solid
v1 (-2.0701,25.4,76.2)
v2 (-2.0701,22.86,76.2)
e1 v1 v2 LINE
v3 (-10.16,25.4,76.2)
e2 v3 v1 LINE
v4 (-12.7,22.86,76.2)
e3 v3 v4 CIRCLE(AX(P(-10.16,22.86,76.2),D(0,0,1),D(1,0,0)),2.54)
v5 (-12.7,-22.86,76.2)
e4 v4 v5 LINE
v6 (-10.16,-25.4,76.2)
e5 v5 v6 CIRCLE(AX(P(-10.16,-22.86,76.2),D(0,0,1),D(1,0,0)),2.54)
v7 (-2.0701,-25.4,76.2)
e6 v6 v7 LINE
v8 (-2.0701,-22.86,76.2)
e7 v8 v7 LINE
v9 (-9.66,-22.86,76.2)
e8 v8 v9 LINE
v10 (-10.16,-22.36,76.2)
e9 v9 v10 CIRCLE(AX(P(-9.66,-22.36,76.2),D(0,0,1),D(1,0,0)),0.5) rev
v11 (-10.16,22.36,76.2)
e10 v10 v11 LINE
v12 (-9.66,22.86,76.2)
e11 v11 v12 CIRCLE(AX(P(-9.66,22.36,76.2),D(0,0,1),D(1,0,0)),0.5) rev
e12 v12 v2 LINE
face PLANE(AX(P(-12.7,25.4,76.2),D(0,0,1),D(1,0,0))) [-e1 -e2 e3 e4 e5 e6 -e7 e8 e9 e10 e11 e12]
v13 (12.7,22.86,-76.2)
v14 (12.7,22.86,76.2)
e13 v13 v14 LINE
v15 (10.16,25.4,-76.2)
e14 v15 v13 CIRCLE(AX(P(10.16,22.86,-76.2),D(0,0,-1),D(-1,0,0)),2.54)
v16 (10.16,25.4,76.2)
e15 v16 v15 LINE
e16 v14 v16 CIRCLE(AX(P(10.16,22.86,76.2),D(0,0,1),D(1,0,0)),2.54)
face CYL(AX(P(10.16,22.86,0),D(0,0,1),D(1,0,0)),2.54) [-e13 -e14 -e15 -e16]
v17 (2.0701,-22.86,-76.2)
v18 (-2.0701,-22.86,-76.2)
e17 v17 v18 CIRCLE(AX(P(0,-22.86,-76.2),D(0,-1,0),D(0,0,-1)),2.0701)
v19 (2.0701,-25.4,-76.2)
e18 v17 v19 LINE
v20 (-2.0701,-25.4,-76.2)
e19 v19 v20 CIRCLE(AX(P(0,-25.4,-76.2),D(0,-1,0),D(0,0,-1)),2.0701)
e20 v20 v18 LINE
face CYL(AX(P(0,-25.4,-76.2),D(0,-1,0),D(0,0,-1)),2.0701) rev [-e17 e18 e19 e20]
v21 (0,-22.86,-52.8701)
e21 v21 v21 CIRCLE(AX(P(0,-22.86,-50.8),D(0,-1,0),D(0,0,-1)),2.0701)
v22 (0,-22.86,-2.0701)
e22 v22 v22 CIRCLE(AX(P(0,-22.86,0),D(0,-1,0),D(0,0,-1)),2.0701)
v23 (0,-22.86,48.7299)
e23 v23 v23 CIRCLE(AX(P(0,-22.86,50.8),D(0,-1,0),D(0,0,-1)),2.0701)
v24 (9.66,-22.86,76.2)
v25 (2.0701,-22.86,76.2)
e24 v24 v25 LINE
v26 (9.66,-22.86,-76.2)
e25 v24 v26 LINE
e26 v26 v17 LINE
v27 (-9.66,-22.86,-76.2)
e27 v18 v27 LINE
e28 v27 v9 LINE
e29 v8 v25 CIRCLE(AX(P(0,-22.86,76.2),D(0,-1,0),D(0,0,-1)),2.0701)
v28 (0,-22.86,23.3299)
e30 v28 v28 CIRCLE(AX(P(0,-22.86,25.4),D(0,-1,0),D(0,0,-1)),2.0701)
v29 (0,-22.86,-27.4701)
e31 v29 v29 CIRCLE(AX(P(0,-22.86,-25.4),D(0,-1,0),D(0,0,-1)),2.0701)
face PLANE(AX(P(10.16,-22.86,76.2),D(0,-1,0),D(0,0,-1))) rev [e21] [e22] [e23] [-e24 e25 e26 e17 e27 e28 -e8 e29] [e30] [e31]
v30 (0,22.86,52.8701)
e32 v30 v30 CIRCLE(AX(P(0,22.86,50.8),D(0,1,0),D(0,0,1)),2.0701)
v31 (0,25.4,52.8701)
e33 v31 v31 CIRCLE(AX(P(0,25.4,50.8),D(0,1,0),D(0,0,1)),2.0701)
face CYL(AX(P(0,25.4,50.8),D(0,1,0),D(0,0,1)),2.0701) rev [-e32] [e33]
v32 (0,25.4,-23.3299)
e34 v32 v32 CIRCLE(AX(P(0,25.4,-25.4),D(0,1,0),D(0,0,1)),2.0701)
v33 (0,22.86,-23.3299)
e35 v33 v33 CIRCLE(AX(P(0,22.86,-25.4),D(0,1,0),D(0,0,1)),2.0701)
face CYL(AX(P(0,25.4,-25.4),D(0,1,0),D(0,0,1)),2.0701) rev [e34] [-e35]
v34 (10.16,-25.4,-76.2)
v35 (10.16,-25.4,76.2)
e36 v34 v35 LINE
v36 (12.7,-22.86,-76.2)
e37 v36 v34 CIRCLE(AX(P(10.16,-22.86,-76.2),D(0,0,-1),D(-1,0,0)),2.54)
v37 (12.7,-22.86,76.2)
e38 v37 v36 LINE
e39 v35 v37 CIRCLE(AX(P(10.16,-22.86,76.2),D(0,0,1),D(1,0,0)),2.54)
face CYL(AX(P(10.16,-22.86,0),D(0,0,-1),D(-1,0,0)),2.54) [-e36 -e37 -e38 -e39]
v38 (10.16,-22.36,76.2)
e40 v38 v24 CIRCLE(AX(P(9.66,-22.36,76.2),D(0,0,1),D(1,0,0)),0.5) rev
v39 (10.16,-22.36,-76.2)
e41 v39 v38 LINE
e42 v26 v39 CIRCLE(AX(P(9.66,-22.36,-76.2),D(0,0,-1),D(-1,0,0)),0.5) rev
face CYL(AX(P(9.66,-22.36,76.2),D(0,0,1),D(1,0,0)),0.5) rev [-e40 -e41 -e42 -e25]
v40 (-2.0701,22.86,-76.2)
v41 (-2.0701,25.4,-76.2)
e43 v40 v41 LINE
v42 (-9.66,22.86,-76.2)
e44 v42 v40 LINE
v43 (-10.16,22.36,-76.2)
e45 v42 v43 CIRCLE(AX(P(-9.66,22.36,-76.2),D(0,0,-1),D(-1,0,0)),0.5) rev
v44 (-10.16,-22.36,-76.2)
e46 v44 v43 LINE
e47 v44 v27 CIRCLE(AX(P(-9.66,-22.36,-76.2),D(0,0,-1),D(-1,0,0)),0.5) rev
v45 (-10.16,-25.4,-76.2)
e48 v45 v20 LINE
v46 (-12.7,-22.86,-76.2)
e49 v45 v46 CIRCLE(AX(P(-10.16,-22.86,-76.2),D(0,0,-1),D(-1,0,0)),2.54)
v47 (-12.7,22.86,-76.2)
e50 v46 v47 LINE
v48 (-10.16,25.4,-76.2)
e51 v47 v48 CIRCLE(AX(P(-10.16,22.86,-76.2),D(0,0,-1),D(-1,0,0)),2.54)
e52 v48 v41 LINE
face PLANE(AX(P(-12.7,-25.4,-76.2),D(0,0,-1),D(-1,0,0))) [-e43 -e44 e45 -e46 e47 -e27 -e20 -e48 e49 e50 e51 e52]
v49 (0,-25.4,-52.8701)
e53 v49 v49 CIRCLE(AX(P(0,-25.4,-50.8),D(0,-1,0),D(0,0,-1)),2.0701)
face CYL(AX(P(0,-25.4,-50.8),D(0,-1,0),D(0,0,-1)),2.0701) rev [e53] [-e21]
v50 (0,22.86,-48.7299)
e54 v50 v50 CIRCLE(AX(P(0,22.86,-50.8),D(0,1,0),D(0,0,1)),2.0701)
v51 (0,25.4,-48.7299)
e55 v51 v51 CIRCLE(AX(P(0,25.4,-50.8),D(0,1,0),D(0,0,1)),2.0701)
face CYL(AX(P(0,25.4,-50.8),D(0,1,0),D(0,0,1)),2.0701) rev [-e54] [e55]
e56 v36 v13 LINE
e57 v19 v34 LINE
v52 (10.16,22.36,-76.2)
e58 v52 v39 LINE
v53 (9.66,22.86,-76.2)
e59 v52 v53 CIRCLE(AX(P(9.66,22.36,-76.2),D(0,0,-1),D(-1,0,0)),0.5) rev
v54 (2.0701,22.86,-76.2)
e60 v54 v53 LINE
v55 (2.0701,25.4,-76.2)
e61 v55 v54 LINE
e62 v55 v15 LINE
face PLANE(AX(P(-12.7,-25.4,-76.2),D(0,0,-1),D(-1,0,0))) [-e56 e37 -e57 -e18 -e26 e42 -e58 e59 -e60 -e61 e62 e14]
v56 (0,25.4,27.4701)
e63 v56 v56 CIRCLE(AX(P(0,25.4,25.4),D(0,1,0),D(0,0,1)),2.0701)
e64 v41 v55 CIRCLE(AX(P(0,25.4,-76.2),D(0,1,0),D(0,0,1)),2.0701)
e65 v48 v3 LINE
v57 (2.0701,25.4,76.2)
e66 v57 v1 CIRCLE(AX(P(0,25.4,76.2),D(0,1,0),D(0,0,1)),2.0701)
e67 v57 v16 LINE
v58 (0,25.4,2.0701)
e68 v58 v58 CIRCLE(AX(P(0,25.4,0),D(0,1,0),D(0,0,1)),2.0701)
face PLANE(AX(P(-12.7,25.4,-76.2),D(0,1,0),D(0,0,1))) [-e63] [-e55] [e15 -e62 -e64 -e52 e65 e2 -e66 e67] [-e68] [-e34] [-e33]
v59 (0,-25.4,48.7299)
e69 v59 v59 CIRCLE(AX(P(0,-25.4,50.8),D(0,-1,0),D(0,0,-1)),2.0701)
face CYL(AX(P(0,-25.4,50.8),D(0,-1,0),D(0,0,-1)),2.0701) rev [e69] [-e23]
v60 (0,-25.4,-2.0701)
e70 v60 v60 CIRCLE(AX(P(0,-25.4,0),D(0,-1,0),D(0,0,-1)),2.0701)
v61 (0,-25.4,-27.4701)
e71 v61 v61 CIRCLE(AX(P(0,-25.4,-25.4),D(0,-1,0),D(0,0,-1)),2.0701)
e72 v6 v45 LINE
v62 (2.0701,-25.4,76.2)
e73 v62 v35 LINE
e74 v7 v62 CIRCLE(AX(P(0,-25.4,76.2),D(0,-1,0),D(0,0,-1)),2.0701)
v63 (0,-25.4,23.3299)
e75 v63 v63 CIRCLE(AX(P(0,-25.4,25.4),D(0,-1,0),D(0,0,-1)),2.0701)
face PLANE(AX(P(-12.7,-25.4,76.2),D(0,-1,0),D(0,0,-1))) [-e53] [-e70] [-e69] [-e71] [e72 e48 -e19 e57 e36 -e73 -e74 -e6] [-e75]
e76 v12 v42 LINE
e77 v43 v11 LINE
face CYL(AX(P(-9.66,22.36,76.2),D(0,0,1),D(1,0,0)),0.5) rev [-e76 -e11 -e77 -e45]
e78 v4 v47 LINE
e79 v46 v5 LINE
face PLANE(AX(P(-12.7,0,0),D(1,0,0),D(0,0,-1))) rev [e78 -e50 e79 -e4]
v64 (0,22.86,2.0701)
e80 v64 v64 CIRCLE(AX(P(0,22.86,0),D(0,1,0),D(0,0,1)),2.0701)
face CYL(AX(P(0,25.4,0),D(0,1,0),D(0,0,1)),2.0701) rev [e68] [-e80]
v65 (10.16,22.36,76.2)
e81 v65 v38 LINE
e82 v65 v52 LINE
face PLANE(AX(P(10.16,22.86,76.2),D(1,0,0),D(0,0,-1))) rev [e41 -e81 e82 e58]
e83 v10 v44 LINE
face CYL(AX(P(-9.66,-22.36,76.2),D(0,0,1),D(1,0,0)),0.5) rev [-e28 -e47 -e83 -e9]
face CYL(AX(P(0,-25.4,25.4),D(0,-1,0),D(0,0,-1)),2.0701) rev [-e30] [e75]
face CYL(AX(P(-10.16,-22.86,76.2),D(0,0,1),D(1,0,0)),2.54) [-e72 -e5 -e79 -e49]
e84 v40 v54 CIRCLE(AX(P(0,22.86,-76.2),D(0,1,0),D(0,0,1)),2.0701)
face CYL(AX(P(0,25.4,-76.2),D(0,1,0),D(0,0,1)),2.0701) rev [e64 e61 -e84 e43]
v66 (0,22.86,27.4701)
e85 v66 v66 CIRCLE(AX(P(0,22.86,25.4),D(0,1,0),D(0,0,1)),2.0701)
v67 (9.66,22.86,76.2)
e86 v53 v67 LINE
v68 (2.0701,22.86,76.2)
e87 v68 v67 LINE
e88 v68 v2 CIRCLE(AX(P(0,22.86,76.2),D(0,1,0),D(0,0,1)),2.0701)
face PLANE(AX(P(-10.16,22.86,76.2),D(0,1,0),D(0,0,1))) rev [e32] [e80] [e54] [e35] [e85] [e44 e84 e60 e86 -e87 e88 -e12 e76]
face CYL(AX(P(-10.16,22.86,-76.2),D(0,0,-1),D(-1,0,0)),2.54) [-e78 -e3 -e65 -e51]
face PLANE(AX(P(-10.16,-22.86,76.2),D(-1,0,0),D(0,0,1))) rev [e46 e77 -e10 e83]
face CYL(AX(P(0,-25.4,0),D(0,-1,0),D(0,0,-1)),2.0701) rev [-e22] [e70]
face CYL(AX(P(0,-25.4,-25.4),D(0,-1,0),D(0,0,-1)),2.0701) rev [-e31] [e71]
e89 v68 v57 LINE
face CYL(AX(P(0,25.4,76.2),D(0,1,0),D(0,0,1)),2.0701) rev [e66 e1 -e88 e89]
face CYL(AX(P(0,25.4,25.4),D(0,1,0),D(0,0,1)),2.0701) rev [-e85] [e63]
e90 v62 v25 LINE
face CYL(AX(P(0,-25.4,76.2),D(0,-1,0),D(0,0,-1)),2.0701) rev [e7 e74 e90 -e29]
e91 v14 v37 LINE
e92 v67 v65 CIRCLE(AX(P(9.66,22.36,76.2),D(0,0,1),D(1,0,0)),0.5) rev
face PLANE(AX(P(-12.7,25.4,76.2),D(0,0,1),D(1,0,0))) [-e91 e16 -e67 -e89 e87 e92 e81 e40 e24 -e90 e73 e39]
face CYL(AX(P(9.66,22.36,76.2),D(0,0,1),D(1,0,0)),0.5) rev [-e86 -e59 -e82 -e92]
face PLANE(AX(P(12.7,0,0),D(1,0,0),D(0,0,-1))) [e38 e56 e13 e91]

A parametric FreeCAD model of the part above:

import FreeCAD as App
import Part
import Sketcher
Q = App.Units.Quantity


def edges_at(feature, points):
    """Names of the edges that pass closest to the given points."""
    edges = feature.Shape.Edges
    near = lambda p: min(range(len(edges)), key=lambda i: edges[i].distToShape(Part.Vertex(*p))[0])
    return sorted({f"Edge{near(p) + 1}" for p in points})

doc = App.newDocument("Part")
body = doc.addObject("PartDesign::Body", "Body")

# Sketch on YZ plane
sketch1 = body.newObject("Sketcher::SketchObject", "Sketch")
sketch1.AttachmentSupport = (doc.getObject("YZ_Plane"), [""])
sketch1.MapMode = "FlatFace"
sketch1.AttachmentOffset = App.Placement(App.Vector(0, 0, 0.5 * 25.4), App.Rotation())
sketch1.addGeometry(Part.LineSegment(App.Vector(25, 76, 0), App.Vector(-25, 76, 0)), False)
sketch1.addGeometry(Part.LineSegment(App.Vector(-25, 76, 0), App.Vector(-25, -76, 0)), False)
sketch1.addGeometry(Part.LineSegment(App.Vector(-25, -76, 0), App.Vector(25, -76, 0)), False)
sketch1.addGeometry(Part.LineSegment(App.Vector(25, -76, 0), App.Vector(25, 76, 0)), False)
sketch1.addConstraint(Sketcher.Constraint("Coincident", 0, 2, 1, 1))
sketch1.addConstraint(Sketcher.Constraint("Coincident", 1, 2, 2, 1))
sketch1.addConstraint(Sketcher.Constraint("Coincident", 2, 2, 3, 1))
sketch1.addConstraint(Sketcher.Constraint("Coincident", 3, 2, 0, 1))
sketch1.addConstraint(Sketcher.Constraint("Horizontal", 0))
sketch1.addConstraint(Sketcher.Constraint("Vertical", 1))
sketch1.addConstraint(Sketcher.Constraint("Horizontal", 2))
sketch1.addConstraint(Sketcher.Constraint("Vertical", 3))
sketch1.addConstraint(Sketcher.Constraint("Symmetric", 0, 2, 2, 2, -1, 1))
sketch1.addConstraint(Sketcher.Constraint("DistanceX", 0, 2, 0, 1, Q("2 in")))
sketch1.addConstraint(Sketcher.Constraint("DistanceY", 1, 2, 1, 1, Q("6 in")))
pad1 = body.newObject("PartDesign::Pad", "Pad")
pad1.Profile = sketch1
pad1.Length = Q("1 in")
pad1.Reversed = True

# Sketch on XY plane
sketch2 = body.newObject("Sketcher::SketchObject", "Sketch001")
sketch2.AttachmentSupport = (doc.getObject("XY_Plane"), [""])
sketch2.MapMode = "FlatFace"
sketch2.AttachmentOffset = App.Placement(App.Vector(0, 0, -3 * 25.4), App.Rotation())
sketch2.addGeometry(Part.LineSegment(App.Vector(10, 23, 0), App.Vector(10, -23, 0)), False)
sketch2.addGeometry(Part.LineSegment(App.Vector(10, -23, 0), App.Vector(-10, -23, 0)), False)
sketch2.addGeometry(Part.LineSegment(App.Vector(-10, -23, 0), App.Vector(-10, 23, 0)), False)
sketch2.addGeometry(Part.LineSegment(App.Vector(-10, 23, 0), App.Vector(10, 23, 0)), False)
sketch2.addConstraint(Sketcher.Constraint("Coincident", 0, 2, 1, 1))
sketch2.addConstraint(Sketcher.Constraint("Coincident", 1, 2, 2, 1))
sketch2.addConstraint(Sketcher.Constraint("Coincident", 2, 2, 3, 1))
sketch2.addConstraint(Sketcher.Constraint("Coincident", 3, 2, 0, 1))
sketch2.addConstraint(Sketcher.Constraint("Vertical", 0))
sketch2.addConstraint(Sketcher.Constraint("Horizontal", 1))
sketch2.addConstraint(Sketcher.Constraint("Vertical", 2))
sketch2.addConstraint(Sketcher.Constraint("Horizontal", 3))
sketch2.addConstraint(Sketcher.Constraint("Symmetric", 0, 2, 2, 2, -1, 1))
sketch2.addConstraint(Sketcher.Constraint("DistanceX", 1, 2, 1, 1, Q("0.8 in")))
sketch2.addConstraint(Sketcher.Constraint("DistanceY", 0, 2, 0, 1, Q("1.8 in")))
pocket1 = body.newObject("PartDesign::Pocket", "Pocket")
pocket1.Profile = sketch2
pocket1.Type = "ThroughAll"
pocket1.Reversed = True

# Sketch on XZ plane
sketch3 = body.newObject("Sketcher::SketchObject", "Sketch002")
sketch3.AttachmentSupport = (doc.getObject("XZ_Plane"), [""])
sketch3.MapMode = "FlatFace"
sketch3.AttachmentOffset = App.Placement(App.Vector(0, 0, 1 * 25.4), App.Rotation())
sketch3.addGeometry(Part.Circle(App.Vector(0, -711.2, 0), App.Vector(0, 0, 1), 2.1), False)
sketch3.addGeometry(Part.Circle(App.Vector(0, -736.6, 0), App.Vector(0, 0, 1), 2.1), False)
sketch3.addGeometry(Part.Circle(App.Vector(0, -685.8, 0), App.Vector(0, 0, 1), 2.1), False)
sketch3.addGeometry(Part.Circle(App.Vector(0, -660.4, 0), App.Vector(0, 0, 1), 2.1), False)
sketch3.addGeometry(Part.Circle(App.Vector(0, -635, 0), App.Vector(0, 0, 1), 2.1), False)
sketch3.addGeometry(Part.Circle(App.Vector(0, -609.6, 0), App.Vector(0, 0, 1), 2.1), False)
sketch3.addGeometry(Part.Circle(App.Vector(0, -584.2, 0), App.Vector(0, 0, 1), 2.1), False)
sketch3.addGeometry(Part.Circle(App.Vector(0, -558.8, 0), App.Vector(0, 0, 1), 2.1), False)
sketch3.addGeometry(Part.Circle(App.Vector(0, -533.4, 0), App.Vector(0, 0, 1), 2.1), False)
sketch3.addGeometry(Part.Circle(App.Vector(0, -508, 0), App.Vector(0, 0, 1), 2.1), False)
sketch3.addGeometry(Part.Circle(App.Vector(0, -482.6, 0), App.Vector(0, 0, 1), 2.1), False)
sketch3.addGeometry(Part.Circle(App.Vector(0, -457.2, 0), App.Vector(0, 0, 1), 2.1), False)
sketch3.addGeometry(Part.Circle(App.Vector(0, -431.8, 0), App.Vector(0, 0, 1), 2.1), False)
sketch3.addGeometry(Part.Circle(App.Vector(0, -406.4, 0), App.Vector(0, 0, 1), 2.1), False)
sketch3.addGeometry(Part.Circle(App.Vector(0, -381, 0), App.Vector(0, 0, 1), 2.1), False)
sketch3.addGeometry(Part.Circle(App.Vector(0, -355.6, 0), App.Vector(0, 0, 1), 2.1), False)
sketch3.addGeometry(Part.Circle(App.Vector(0, -330.2, 0), App.Vector(0, 0, 1), 2.1), False)
sketch3.addGeometry(Part.Circle(App.Vector(0, -304.8, 0), App.Vector(0, 0, 1), 2.1), False)
sketch3.addGeometry(Part.Circle(App.Vector(0, -279.4, 0), App.Vector(0, 0, 1), 2.1), False)
sketch3.addGeometry(Part.Circle(App.Vector(0, -254, 0), App.Vector(0, 0, 1), 2.1), False)
sketch3.addGeometry(Part.Circle(App.Vector(0, -228.6, 0), App.Vector(0, 0, 1), 2.1), False)
sketch3.addGeometry(Part.Circle(App.Vector(0, -203.2, 0), App.Vector(0, 0, 1), 2.1), False)
sketch3.addGeometry(Part.Circle(App.Vector(0, -177.8, 0), App.Vector(0, 0, 1), 2.1), False)
sketch3.addGeometry(Part.Circle(App.Vector(0, -152.4, 0), App.Vector(0, 0, 1), 2.1), False)
sketch3.addGeometry(Part.Circle(App.Vector(0, -127, 0), App.Vector(0, 0, 1), 2.1), False)
sketch3.addGeometry(Part.Circle(App.Vector(0, -101.6, 0), App.Vector(0, 0, 1), 2.1), False)
sketch3.addGeometry(Part.Circle(App.Vector(0, -76.2, 0), App.Vector(0, 0, 1), 2.1), False)
sketch3.addGeometry(Part.Circle(App.Vector(0, -50.8, 0), App.Vector(0, 0, 1), 2.1), False)
sketch3.addGeometry(Part.Circle(App.Vector(0, -25.4, 0), App.Vector(0, 0, 1), 2.1), False)
sketch3.addGeometry(Part.Circle(App.Vector(0, 0, 0), App.Vector(0, 0, 1), 2.1), False)
sketch3.addGeometry(Part.Circle(App.Vector(0, 25.4, 0), App.Vector(0, 0, 1), 2.1), False)
sketch3.addGeometry(Part.Circle(App.Vector(0, 50.8, 0), App.Vector(0, 0, 1), 2.1), False)
sketch3.addGeometry(Part.Circle(App.Vector(0, 76.2, 0), App.Vector(0, 0, 1), 2.1), False)
sketch3.addGeometry(Part.Circle(App.Vector(0, 101.6, 0), App.Vector(0, 0, 1), 2.1), False)
sketch3.addGeometry(Part.Circle(App.Vector(0, 127, 0), App.Vector(0, 0, 1), 2.1), False)
sketch3.addGeometry(Part.Circle(App.Vector(0, 152.4, 0), App.Vector(0, 0, 1), 2.1), False)
sketch3.addGeometry(Part.Circle(App.Vector(0, 177.8, 0), App.Vector(0, 0, 1), 2.1), False)
sketch3.addGeometry(Part.Circle(App.Vector(0, 203.2, 0), App.Vector(0, 0, 1), 2.1), False)
sketch3.addGeometry(Part.Circle(App.Vector(0, 228.6, 0), App.Vector(0, 0, 1), 2.1), False)
sketch3.addGeometry(Part.Circle(App.Vector(0, 254, 0), App.Vector(0, 0, 1), 2.1), False)
sketch3.addGeometry(Part.Circle(App.Vector(0, 279.4, 0), App.Vector(0, 0, 1), 2.1), False)
sketch3.addGeometry(Part.Circle(App.Vector(0, 304.8, 0), App.Vector(0, 0, 1), 2.1), False)
sketch3.addGeometry(Part.Circle(App.Vector(0, 330.2, 0), App.Vector(0, 0, 1), 2.1), False)
sketch3.addGeometry(Part.Circle(App.Vector(0, 355.6, 0), App.Vector(0, 0, 1), 2.1), False)
sketch3.addGeometry(Part.Circle(App.Vector(0, 381, 0), App.Vector(0, 0, 1), 2.1), False)
sketch3.addGeometry(Part.Circle(App.Vector(0, 406.4, 0), App.Vector(0, 0, 1), 2.1), False)
sketch3.addGeometry(Part.Circle(App.Vector(0, 431.8, 0), App.Vector(0, 0, 1), 2.1), False)
sketch3.addGeometry(Part.Circle(App.Vector(0, 457.2, 0), App.Vector(0, 0, 1), 2.1), False)
sketch3.addGeometry(Part.Circle(App.Vector(0, 482.6, 0), App.Vector(0, 0, 1), 2.1), False)
sketch3.addGeometry(Part.Circle(App.Vector(0, 508, 0), App.Vector(0, 0, 1), 2.1), False)
sketch3.addGeometry(Part.Circle(App.Vector(0, 533.4, 0), App.Vector(0, 0, 1), 2.1), False)
sketch3.addGeometry(Part.Circle(App.Vector(0, 558.8, 0), App.Vector(0, 0, 1), 2.1), False)
sketch3.addGeometry(Part.Circle(App.Vector(0, 584.2, 0), App.Vector(0, 0, 1), 2.1), False)
sketch3.addGeometry(Part.Circle(App.Vector(0, 609.6, 0), App.Vector(0, 0, 1), 2.1), False)
sketch3.addGeometry(Part.Circle(App.Vector(0, 635, 0), App.Vector(0, 0, 1), 2.1), False)
sketch3.addGeometry(Part.Circle(App.Vector(0, 660.4, 0), App.Vector(0, 0, 1), 2.1), False)
sketch3.addGeometry(Part.Circle(App.Vector(0, 685.8, 0), App.Vector(0, 0, 1), 2.1), False)
sketch3.addGeometry(Part.Circle(App.Vector(0, 711.2, 0), App.Vector(0, 0, 1), 2.1), False)
sketch3.addGeometry(Part.Circle(App.Vector(0, 736.6, 0), App.Vector(0, 0, 1), 2.1), False)
sketch3.addConstraint(Sketcher.Constraint("Coincident", 29, 3, -1, 1))
sketch3.addConstraint(Sketcher.Constraint("Equal", 0, 1))
sketch3.addConstraint(Sketcher.Constraint("Equal", 1, 2))
sketch3.addConstraint(Sketcher.Constraint("Equal", 2, 3))
sketch3.addConstraint(Sketcher.Constraint("Equal", 3, 4))
sketch3.addConstraint(Sketcher.Constraint("Equal", 4, 5))
sketch3.addConstraint(Sketcher.Constraint("Equal", 5, 6))
sketch3.addConstraint(Sketcher.Constraint("Equal", 6, 7))
sketch3.addConstraint(Sketcher.Constraint("Equal", 7, 8))
sketch3.addConstraint(Sketcher.Constraint("Equal", 8, 9))
sketch3.addConstraint(Sketcher.Constraint("Equal", 9, 10))
sketch3.addConstraint(Sketcher.Constraint("Equal", 10, 11))
sketch3.addConstraint(Sketcher.Constraint("Equal", 11, 12))
sketch3.addConstraint(Sketcher.Constraint("Equal", 12, 13))
sketch3.addConstraint(Sketcher.Constraint("Equal", 13, 14))
sketch3.addConstraint(Sketcher.Constraint("Equal", 14, 15))
sketch3.addConstraint(Sketcher.Constraint("Equal", 15, 16))
sketch3.addConstraint(Sketcher.Constraint("Equal", 16, 17))
sketch3.addConstraint(Sketcher.Constraint("Equal", 17, 18))
sketch3.addConstraint(Sketcher.Constraint("Equal", 18, 19))
sketch3.addConstraint(Sketcher.Constraint("Equal", 19, 20))
sketch3.addConstraint(Sketcher.Constraint("Equal", 20, 21))
sketch3.addConstraint(Sketcher.Constraint("Equal", 21, 22))
sketch3.addConstraint(Sketcher.Constraint("Equal", 22, 23))
sketch3.addConstraint(Sketcher.Constraint("Equal", 23, 24))
sketch3.addConstraint(Sketcher.Constraint("Equal", 24, 25))
sketch3.addConstraint(Sketcher.Constraint("Equal", 25, 26))
sketch3.addConstraint(Sketcher.Constraint("Equal", 26, 27))
sketch3.addConstraint(Sketcher.Constraint("Equal", 27, 28))
sketch3.addConstraint(Sketcher.Constraint("Equal", 28, 29))
sketch3.addConstraint(Sketcher.Constraint("Equal", 29, 30))
sketch3.addConstraint(Sketcher.Constraint("Equal", 30, 31))
sketch3.addConstraint(Sketcher.Constraint("Equal", 31, 32))
sketch3.addConstraint(Sketcher.Constraint("Equal", 32, 33))
sketch3.addConstraint(Sketcher.Constraint("Equal", 33, 34))
sketch3.addConstraint(Sketcher.Constraint("Equal", 34, 35))
sketch3.addConstraint(Sketcher.Constraint("Equal", 35, 36))
sketch3.addConstraint(Sketcher.Constraint("Equal", 36, 37))
sketch3.addConstraint(Sketcher.Constraint("Equal", 37, 38))
sketch3.addConstraint(Sketcher.Constraint("Equal", 38, 39))
sketch3.addConstraint(Sketcher.Constraint("Equal", 39, 40))
sketch3.addConstraint(Sketcher.Constraint("Equal", 40, 41))
sketch3.addConstraint(Sketcher.Constraint("Equal", 41, 42))
sketch3.addConstraint(Sketcher.Constraint("Equal", 42, 43))
sketch3.addConstraint(Sketcher.Constraint("Equal", 43, 44))
sketch3.addConstraint(Sketcher.Constraint("Equal", 44, 45))
sketch3.addConstraint(Sketcher.Constraint("Equal", 45, 46))
sketch3.addConstraint(Sketcher.Constraint("Equal", 46, 47))
sketch3.addConstraint(Sketcher.Constraint("Equal", 47, 48))
sketch3.addConstraint(Sketcher.Constraint("Equal", 48, 49))
sketch3.addConstraint(Sketcher.Constraint("Equal", 49, 50))
sketch3.addConstraint(Sketcher.Constraint("Equal", 50, 51))
sketch3.addConstraint(Sketcher.Constraint("Equal", 51, 52))
sketch3.addConstraint(Sketcher.Constraint("Equal", 52, 53))
sketch3.addConstraint(Sketcher.Constraint("Equal", 53, 54))
sketch3.addConstraint(Sketcher.Constraint("Equal", 54, 55))
sketch3.addConstraint(Sketcher.Constraint("Equal", 55, 56))
sketch3.addConstraint(Sketcher.Constraint("Equal", 56, 57))
sketch3.addConstraint(Sketcher.Constraint("Equal", 57, 58))
sketch3.addConstraint(Sketcher.Constraint("Symmetric", 28, 3, 30, 3, -1, 1))
sketch3.addConstraint(Sketcher.Constraint("Symmetric", 27, 3, 31, 3, -1, 1))
sketch3.addConstraint(Sketcher.Constraint("Symmetric", 26, 3, 32, 3, -1, 1))
sketch3.addConstraint(Sketcher.Constraint("Symmetric", 25, 3, 33, 3, -1, 1))
sketch3.addConstraint(Sketcher.Constraint("Symmetric", 24, 3, 34, 3, -1, 1))
sketch3.addConstraint(Sketcher.Constraint("Symmetric", 23, 3, 35, 3, -1, 1))
sketch3.addConstraint(Sketcher.Constraint("Symmetric", 22, 3, 36, 3, -1, 1))
sketch3.addConstraint(Sketcher.Constraint("Symmetric", 21, 3, 37, 3, -1, 1))
sketch3.addConstraint(Sketcher.Constraint("Symmetric", 20, 3, 38, 3, -1, 1))
sketch3.addConstraint(Sketcher.Constraint("Symmetric", 19, 3, 39, 3, -1, 1))
sketch3.addConstraint(Sketcher.Constraint("Symmetric", 18, 3, 40, 3, -1, 1))
sketch3.addConstraint(Sketcher.Constraint("Symmetric", 17, 3, 41, 3, -1, 1))
sketch3.addConstraint(Sketcher.Constraint("Symmetric", 16, 3, 42, 3, -1, 1))
sketch3.addConstraint(Sketcher.Constraint("Symmetric", 15, 3, 43, 3, -1, 1))
sketch3.addConstraint(Sketcher.Constraint("Symmetric", 14, 3, 44, 3, -1, 1))
sketch3.addConstraint(Sketcher.Constraint("Symmetric", 13, 3, 45, 3, -1, 1))
sketch3.addConstraint(Sketcher.Constraint("Symmetric", 12, 3, 46, 3, -1, 1))
sketch3.addConstraint(Sketcher.Constraint("Symmetric", 11, 3, 47, 3, -1, 1))
sketch3.addConstraint(Sketcher.Constraint("Symmetric", 10, 3, 48, 3, -1, 1))
sketch3.addConstraint(Sketcher.Constraint("Symmetric", 9, 3, 49, 3, -1, 1))
sketch3.addConstraint(Sketcher.Constraint("Symmetric", 8, 3, 50, 3, -1, 1))
sketch3.addConstraint(Sketcher.Constraint("Symmetric", 7, 3, 51, 3, -1, 1))
sketch3.addConstraint(Sketcher.Constraint("Symmetric", 6, 3, 52, 3, -1, 1))
sketch3.addConstraint(Sketcher.Constraint("Symmetric", 5, 3, 53, 3, -1, 1))
sketch3.addConstraint(Sketcher.Constraint("Symmetric", 4, 3, 54, 3, -1, 1))
sketch3.addConstraint(Sketcher.Constraint("Symmetric", 3, 3, 55, 3, -1, 1))
sketch3.addConstraint(Sketcher.Constraint("Symmetric", 2, 3, 56, 3, -1, 1))
sketch3.addConstraint(Sketcher.Constraint("Symmetric", 0, 3, 57, 3, -1, 1))
sketch3.addConstraint(Sketcher.Constraint("Symmetric", 1, 3, 58, 3, -1, 1))
sketch3.addConstraint(Sketcher.Constraint("PointOnObject", 0, 3, -2))
sketch3.addConstraint(Sketcher.Constraint("PointOnObject", 1, 3, -2))
sketch3.addConstraint(Sketcher.Constraint("PointOnObject", 2, 3, -2))
sketch3.addConstraint(Sketcher.Constraint("PointOnObject", 3, 3, -2))
sketch3.addConstraint(Sketcher.Constraint("PointOnObject", 4, 3, -2))
sketch3.addConstraint(Sketcher.Constraint("PointOnObject", 5, 3, -2))
sketch3.addConstraint(Sketcher.Constraint("PointOnObject", 6, 3, -2))
sketch3.addConstraint(Sketcher.Constraint("PointOnObject", 7, 3, -2))
sketch3.addConstraint(Sketcher.Constraint("PointOnObject", 8, 3, -2))
sketch3.addConstraint(Sketcher.Constraint("PointOnObject", 9, 3, -2))
sketch3.addConstraint(Sketcher.Constraint("PointOnObject", 10, 3, -2))
sketch3.addConstraint(Sketcher.Constraint("PointOnObject", 11, 3, -2))
sketch3.addConstraint(Sketcher.Constraint("PointOnObject", 12, 3, -2))
sketch3.addConstraint(Sketcher.Constraint("PointOnObject", 13, 3, -2))
sketch3.addConstraint(Sketcher.Constraint("PointOnObject", 14, 3, -2))
sketch3.addConstraint(Sketcher.Constraint("PointOnObject", 15, 3, -2))
sketch3.addConstraint(Sketcher.Constraint("PointOnObject", 16, 3, -2))
sketch3.addConstraint(Sketcher.Constraint("PointOnObject", 17, 3, -2))
sketch3.addConstraint(Sketcher.Constraint("PointOnObject", 18, 3, -2))
sketch3.addConstraint(Sketcher.Constraint("PointOnObject", 19, 3, -2))
sketch3.addConstraint(Sketcher.Constraint("PointOnObject", 20, 3, -2))
sketch3.addConstraint(Sketcher.Constraint("PointOnObject", 21, 3, -2))
sketch3.addConstraint(Sketcher.Constraint("PointOnObject", 22, 3, -2))
sketch3.addConstraint(Sketcher.Constraint("PointOnObject", 23, 3, -2))
sketch3.addConstraint(Sketcher.Constraint("PointOnObject", 24, 3, -2))
sketch3.addConstraint(Sketcher.Constraint("PointOnObject", 25, 3, -2))
sketch3.addConstraint(Sketcher.Constraint("PointOnObject", 26, 3, -2))
sketch3.addConstraint(Sketcher.Constraint("PointOnObject", 27, 3, -2))
sketch3.addConstraint(Sketcher.Constraint("PointOnObject", 28, 3, -2))
sketch3.addConstraint(Sketcher.Constraint("Diameter", 0, Q("0.163 in")))
sketch3.addConstraint(Sketcher.Constraint("DistanceY", 0, 3, -1, 1, Q("28 in")))
sketch3.addConstraint(Sketcher.Constraint("DistanceY", 1, 3, -1, 1, Q("29 in")))
sketch3.addConstraint(Sketcher.Constraint("DistanceY", 2, 3, -1, 1, Q("27 in")))
sketch3.addConstraint(Sketcher.Constraint("DistanceY", 3, 3, -1, 1, Q("26 in")))
sketch3.addConstraint(Sketcher.Constraint("DistanceY", 4, 3, -1, 1, Q("25 in")))
sketch3.addConstraint(Sketcher.Constraint("DistanceY", 5, 3, -1, 1, Q("24 in")))
sketch3.addConstraint(Sketcher.Constraint("DistanceY", 6, 3, -1, 1, Q("23 in")))
sketch3.addConstraint(Sketcher.Constraint("DistanceY", 7, 3, -1, 1, Q("22 in")))
sketch3.addConstraint(Sketcher.Constraint("DistanceY", 8, 3, -1, 1, Q("21 in")))
sketch3.addConstraint(Sketcher.Constraint("DistanceY", 9, 3, -1, 1, Q("20 in")))
sketch3.addConstraint(Sketcher.Constraint("DistanceY", 10, 3, -1, 1, Q("19 in")))
sketch3.addConstraint(Sketcher.Constraint("DistanceY", 11, 3, -1, 1, Q("18 in")))
sketch3.addConstraint(Sketcher.Constraint("DistanceY", 12, 3, -1, 1, Q("17 in")))
sketch3.addConstraint(Sketcher.Constraint("DistanceY", 13, 3, -1, 1, Q("16 in")))
sketch3.addConstraint(Sketcher.Constraint("DistanceY", 14, 3, -1, 1, Q("15 in")))
sketch3.addConstraint(Sketcher.Constraint("DistanceY", 15, 3, -1, 1, Q("14 in")))
sketch3.addConstraint(Sketcher.Constraint("DistanceY", 16, 3, -1, 1, Q("13 in")))
sketch3.addConstraint(Sketcher.Constraint("DistanceY", 17, 3, -1, 1, Q("12 in")))
sketch3.addConstraint(Sketcher.Constraint("DistanceY", 18, 3, -1, 1, Q("11 in")))
sketch3.addConstraint(Sketcher.Constraint("DistanceY", 19, 3, -1, 1, Q("10 in")))
sketch3.addConstraint(Sketcher.Constraint("DistanceY", 20, 3, -1, 1, Q("9 in")))
sketch3.addConstraint(Sketcher.Constraint("DistanceY", 21, 3, -1, 1, Q("8 in")))
sketch3.addConstraint(Sketcher.Constraint("DistanceY", 22, 3, -1, 1, Q("7 in")))
sketch3.addConstraint(Sketcher.Constraint("DistanceY", 23, 3, -1, 1, Q("6 in")))
sketch3.addConstraint(Sketcher.Constraint("DistanceY", 24, 3, -1, 1, Q("5 in")))
sketch3.addConstraint(Sketcher.Constraint("DistanceY", 25, 3, -1, 1, Q("4 in")))
sketch3.addConstraint(Sketcher.Constraint("DistanceY", 26, 3, -1, 1, Q("3 in")))
sketch3.addConstraint(Sketcher.Constraint("DistanceY", 27, 3, -1, 1, Q("2 in")))
sketch3.addConstraint(Sketcher.Constraint("DistanceY", 28, 3, -1, 1, Q("1 in")))
doc.recompute()
hole = body.newObject("PartDesign::Hole", "Hole")
hole.Profile = sketch3
hole.ThreadType = "None"
hole.Diameter = Q("0.163 in")
hole.DepthType = "Dimension"
hole.Depth = Q("2 in")
hole.DrillPoint = "Flat"

# Sketch on XZ plane
sketch4 = body.newObject("Sketcher::SketchObject", "Sketch003")
sketch4.AttachmentSupport = (doc.getObject("XZ_Plane"), [""])
sketch4.MapMode = "FlatFace"
sketch4.AttachmentOffset = App.Placement(App.Vector(0, 0, -1 * 25.4), App.Rotation())
sketch4.addGeometry(Part.Circle(App.Vector(0, -711.2, 0), App.Vector(0, 0, 1), 2.1), False)
sketch4.addGeometry(Part.Circle(App.Vector(0, -736.6, 0), App.Vector(0, 0, 1), 2.1), False)
sketch4.addGeometry(Part.Circle(App.Vector(0, -685.8, 0), App.Vector(0, 0, 1), 2.1), False)
sketch4.addGeometry(Part.Circle(App.Vector(0, -660.4, 0), App.Vector(0, 0, 1), 2.1), False)
sketch4.addGeometry(Part.Circle(App.Vector(0, -635, 0), App.Vector(0, 0, 1), 2.1), False)
sketch4.addGeometry(Part.Circle(App.Vector(0, -609.6, 0), App.Vector(0, 0, 1), 2.1), False)
sketch4.addGeometry(Part.Circle(App.Vector(0, -584.2, 0), App.Vector(0, 0, 1), 2.1), False)
sketch4.addGeometry(Part.Circle(App.Vector(0, -558.8, 0), App.Vector(0, 0, 1), 2.1), False)
sketch4.addGeometry(Part.Circle(App.Vector(0, -533.4, 0), App.Vector(0, 0, 1), 2.1), False)
sketch4.addGeometry(Part.Circle(App.Vector(0, -508, 0), App.Vector(0, 0, 1), 2.1), False)
sketch4.addGeometry(Part.Circle(App.Vector(0, -482.6, 0), App.Vector(0, 0, 1), 2.1), False)
sketch4.addGeometry(Part.Circle(App.Vector(0, -457.2, 0), App.Vector(0, 0, 1), 2.1), False)
sketch4.addGeometry(Part.Circle(App.Vector(0, -431.8, 0), App.Vector(0, 0, 1), 2.1), False)
sketch4.addGeometry(Part.Circle(App.Vector(0, -406.4, 0), App.Vector(0, 0, 1), 2.1), False)
sketch4.addGeometry(Part.Circle(App.Vector(0, -381, 0), App.Vector(0, 0, 1), 2.1), False)
sketch4.addGeometry(Part.Circle(App.Vector(0, -355.6, 0), App.Vector(0, 0, 1), 2.1), False)
sketch4.addGeometry(Part.Circle(App.Vector(0, -330.2, 0), App.Vector(0, 0, 1), 2.1), False)
sketch4.addGeometry(Part.Circle(App.Vector(0, -304.8, 0), App.Vector(0, 0, 1), 2.1), False)
sketch4.addGeometry(Part.Circle(App.Vector(0, -279.4, 0), App.Vector(0, 0, 1), 2.1), False)
sketch4.addGeometry(Part.Circle(App.Vector(0, -254, 0), App.Vector(0, 0, 1), 2.1), False)
sketch4.addGeometry(Part.Circle(App.Vector(0, -228.6, 0), App.Vector(0, 0, 1), 2.1), False)
sketch4.addGeometry(Part.Circle(App.Vector(0, -203.2, 0), App.Vector(0, 0, 1), 2.1), False)
sketch4.addGeometry(Part.Circle(App.Vector(0, -177.8, 0), App.Vector(0, 0, 1), 2.1), False)
sketch4.addGeometry(Part.Circle(App.Vector(0, -152.4, 0), App.Vector(0, 0, 1), 2.1), False)
sketch4.addGeometry(Part.Circle(App.Vector(0, -127, 0), App.Vector(0, 0, 1), 2.1), False)
sketch4.addGeometry(Part.Circle(App.Vector(0, -101.6, 0), App.Vector(0, 0, 1), 2.1), False)
sketch4.addGeometry(Part.Circle(App.Vector(0, -76.2, 0), App.Vector(0, 0, 1), 2.1), False)
sketch4.addGeometry(Part.Circle(App.Vector(0, -50.8, 0), App.Vector(0, 0, 1), 2.1), False)
sketch4.addGeometry(Part.Circle(App.Vector(0, -25.4, 0), App.Vector(0, 0, 1), 2.1), False)
sketch4.addGeometry(Part.Circle(App.Vector(0, 0, 0), App.Vector(0, 0, 1), 2.1), False)
sketch4.addGeometry(Part.Circle(App.Vector(0, 25.4, 0), App.Vector(0, 0, 1), 2.1), False)
sketch4.addGeometry(Part.Circle(App.Vector(0, 50.8, 0), App.Vector(0, 0, 1), 2.1), False)
sketch4.addGeometry(Part.Circle(App.Vector(0, 76.2, 0), App.Vector(0, 0, 1), 2.1), False)
sketch4.addGeometry(Part.Circle(App.Vector(0, 101.6, 0), App.Vector(0, 0, 1), 2.1), False)
sketch4.addGeometry(Part.Circle(App.Vector(0, 127, 0), App.Vector(0, 0, 1), 2.1), False)
sketch4.addGeometry(Part.Circle(App.Vector(0, 152.4, 0), App.Vector(0, 0, 1), 2.1), False)
sketch4.addGeometry(Part.Circle(App.Vector(0, 177.8, 0), App.Vector(0, 0, 1), 2.1), False)
sketch4.addGeometry(Part.Circle(App.Vector(0, 203.2, 0), App.Vector(0, 0, 1), 2.1), False)
sketch4.addGeometry(Part.Circle(App.Vector(0, 228.6, 0), App.Vector(0, 0, 1), 2.1), False)
sketch4.addGeometry(Part.Circle(App.Vector(0, 254, 0), App.Vector(0, 0, 1), 2.1), False)
sketch4.addGeometry(Part.Circle(App.Vector(0, 279.4, 0), App.Vector(0, 0, 1), 2.1), False)
sketch4.addGeometry(Part.Circle(App.Vector(0, 304.8, 0), App.Vector(0, 0, 1), 2.1), False)
sketch4.addGeometry(Part.Circle(App.Vector(0, 330.2, 0), App.Vector(0, 0, 1), 2.1), False)
sketch4.addGeometry(Part.Circle(App.Vector(0, 355.6, 0), App.Vector(0, 0, 1), 2.1), False)
sketch4.addGeometry(Part.Circle(App.Vector(0, 381, 0), App.Vector(0, 0, 1), 2.1), False)
sketch4.addGeometry(Part.Circle(App.Vector(0, 406.4, 0), App.Vector(0, 0, 1), 2.1), False)
sketch4.addGeometry(Part.Circle(App.Vector(0, 431.8, 0), App.Vector(0, 0, 1), 2.1), False)
sketch4.addGeometry(Part.Circle(App.Vector(0, 457.2, 0), App.Vector(0, 0, 1), 2.1), False)
sketch4.addGeometry(Part.Circle(App.Vector(0, 482.6, 0), App.Vector(0, 0, 1), 2.1), False)
sketch4.addGeometry(Part.Circle(App.Vector(0, 508, 0), App.Vector(0, 0, 1), 2.1), False)
sketch4.addGeometry(Part.Circle(App.Vector(0, 533.4, 0), App.Vector(0, 0, 1), 2.1), False)
sketch4.addGeometry(Part.Circle(App.Vector(0, 558.8, 0), App.Vector(0, 0, 1), 2.1), False)
sketch4.addGeometry(Part.Circle(App.Vector(0, 584.2, 0), App.Vector(0, 0, 1), 2.1), False)
sketch4.addGeometry(Part.Circle(App.Vector(0, 609.6, 0), App.Vector(0, 0, 1), 2.1), False)
sketch4.addGeometry(Part.Circle(App.Vector(0, 635, 0), App.Vector(0, 0, 1), 2.1), False)
sketch4.addGeometry(Part.Circle(App.Vector(0, 660.4, 0), App.Vector(0, 0, 1), 2.1), False)
sketch4.addGeometry(Part.Circle(App.Vector(0, 685.8, 0), App.Vector(0, 0, 1), 2.1), False)
sketch4.addGeometry(Part.Circle(App.Vector(0, 711.2, 0), App.Vector(0, 0, 1), 2.1), False)
sketch4.addGeometry(Part.Circle(App.Vector(0, 736.6, 0), App.Vector(0, 0, 1), 2.1), False)
sketch4.addConstraint(Sketcher.Constraint("Coincident", 29, 3, -1, 1))
sketch4.addConstraint(Sketcher.Constraint("Equal", 0, 1))
sketch4.addConstraint(Sketcher.Constraint("Equal", 1, 2))
sketch4.addConstraint(Sketcher.Constraint("Equal", 2, 3))
sketch4.addConstraint(Sketcher.Constraint("Equal", 3, 4))
sketch4.addConstraint(Sketcher.Constraint("Equal", 4, 5))
sketch4.addConstraint(Sketcher.Constraint("Equal", 5, 6))
sketch4.addConstraint(Sketcher.Constraint("Equal", 6, 7))
sketch4.addConstraint(Sketcher.Constraint("Equal", 7, 8))
sketch4.addConstraint(Sketcher.Constraint("Equal", 8, 9))
sketch4.addConstraint(Sketcher.Constraint("Equal", 9, 10))
sketch4.addConstraint(Sketcher.Constraint("Equal", 10, 11))
sketch4.addConstraint(Sketcher.Constraint("Equal", 11, 12))
sketch4.addConstraint(Sketcher.Constraint("Equal", 12, 13))
sketch4.addConstraint(Sketcher.Constraint("Equal", 13, 14))
sketch4.addConstraint(Sketcher.Constraint("Equal", 14, 15))
sketch4.addConstraint(Sketcher.Constraint("Equal", 15, 16))
sketch4.addConstraint(Sketcher.Constraint("Equal", 16, 17))
sketch4.addConstraint(Sketcher.Constraint("Equal", 17, 18))
sketch4.addConstraint(Sketcher.Constraint("Equal", 18, 19))
sketch4.addConstraint(Sketcher.Constraint("Equal", 19, 20))
sketch4.addConstraint(Sketcher.Constraint("Equal", 20, 21))
sketch4.addConstraint(Sketcher.Constraint("Equal", 21, 22))
sketch4.addConstraint(Sketcher.Constraint("Equal", 22, 23))
sketch4.addConstraint(Sketcher.Constraint("Equal", 23, 24))
sketch4.addConstraint(Sketcher.Constraint("Equal", 24, 25))
sketch4.addConstraint(Sketcher.Constraint("Equal", 25, 26))
sketch4.addConstraint(Sketcher.Constraint("Equal", 26, 27))
sketch4.addConstraint(Sketcher.Constraint("Equal", 27, 28))
sketch4.addConstraint(Sketcher.Constraint("Equal", 28, 29))
sketch4.addConstraint(Sketcher.Constraint("Equal", 29, 30))
sketch4.addConstraint(Sketcher.Constraint("Equal", 30, 31))
sketch4.addConstraint(Sketcher.Constraint("Equal", 31, 32))
sketch4.addConstraint(Sketcher.Constraint("Equal", 32, 33))
sketch4.addConstraint(Sketcher.Constraint("Equal", 33, 34))
sketch4.addConstraint(Sketcher.Constraint("Equal", 34, 35))
sketch4.addConstraint(Sketcher.Constraint("Equal", 35, 36))
sketch4.addConstraint(Sketcher.Constraint("Equal", 36, 37))
sketch4.addConstraint(Sketcher.Constraint("Equal", 37, 38))
sketch4.addConstraint(Sketcher.Constraint("Equal", 38, 39))
sketch4.addConstraint(Sketcher.Constraint("Equal", 39, 40))
sketch4.addConstraint(Sketcher.Constraint("Equal", 40, 41))
sketch4.addConstraint(Sketcher.Constraint("Equal", 41, 42))
sketch4.addConstraint(Sketcher.Constraint("Equal", 42, 43))
sketch4.addConstraint(Sketcher.Constraint("Equal", 43, 44))
sketch4.addConstraint(Sketcher.Constraint("Equal", 44, 45))
sketch4.addConstraint(Sketcher.Constraint("Equal", 45, 46))
sketch4.addConstraint(Sketcher.Constraint("Equal", 46, 47))
sketch4.addConstraint(Sketcher.Constraint("Equal", 47, 48))
sketch4.addConstraint(Sketcher.Constraint("Equal", 48, 49))
sketch4.addConstraint(Sketcher.Constraint("Equal", 49, 50))
sketch4.addConstraint(Sketcher.Constraint("Equal", 50, 51))
sketch4.addConstraint(Sketcher.Constraint("Equal", 51, 52))
sketch4.addConstraint(Sketcher.Constraint("Equal", 52, 53))
sketch4.addConstraint(Sketcher.Constraint("Equal", 53, 54))
sketch4.addConstraint(Sketcher.Constraint("Equal", 54, 55))
sketch4.addConstraint(Sketcher.Constraint("Equal", 55, 56))
sketch4.addConstraint(Sketcher.Constraint("Equal", 56, 57))
sketch4.addConstraint(Sketcher.Constraint("Equal", 57, 58))
sketch4.addConstraint(Sketcher.Constraint("Symmetric", 28, 3, 30, 3, -1, 1))
sketch4.addConstraint(Sketcher.Constraint("Symmetric", 27, 3, 31, 3, -1, 1))
sketch4.addConstraint(Sketcher.Constraint("Symmetric", 26, 3, 32, 3, -1, 1))
sketch4.addConstraint(Sketcher.Constraint("Symmetric", 25, 3, 33, 3, -1, 1))
sketch4.addConstraint(Sketcher.Constraint("Symmetric", 24, 3, 34, 3, -1, 1))
sketch4.addConstraint(Sketcher.Constraint("Symmetric", 23, 3, 35, 3, -1, 1))
sketch4.addConstraint(Sketcher.Constraint("Symmetric", 22, 3, 36, 3, -1, 1))
sketch4.addConstraint(Sketcher.Constraint("Symmetric", 21, 3, 37, 3, -1, 1))
sketch4.addConstraint(Sketcher.Constraint("Symmetric", 20, 3, 38, 3, -1, 1))
sketch4.addConstraint(Sketcher.Constraint("Symmetric", 19, 3, 39, 3, -1, 1))
sketch4.addConstraint(Sketcher.Constraint("Symmetric", 18, 3, 40, 3, -1, 1))
sketch4.addConstraint(Sketcher.Constraint("Symmetric", 17, 3, 41, 3, -1, 1))
sketch4.addConstraint(Sketcher.Constraint("Symmetric", 16, 3, 42, 3, -1, 1))
sketch4.addConstraint(Sketcher.Constraint("Symmetric", 15, 3, 43, 3, -1, 1))
sketch4.addConstraint(Sketcher.Constraint("Symmetric", 14, 3, 44, 3, -1, 1))
sketch4.addConstraint(Sketcher.Constraint("Symmetric", 13, 3, 45, 3, -1, 1))
sketch4.addConstraint(Sketcher.Constraint("Symmetric", 12, 3, 46, 3, -1, 1))
sketch4.addConstraint(Sketcher.Constraint("Symmetric", 11, 3, 47, 3, -1, 1))
sketch4.addConstraint(Sketcher.Constraint("Symmetric", 10, 3, 48, 3, -1, 1))
sketch4.addConstraint(Sketcher.Constraint("Symmetric", 9, 3, 49, 3, -1, 1))
sketch4.addConstraint(Sketcher.Constraint("Symmetric", 8, 3, 50, 3, -1, 1))
sketch4.addConstraint(Sketcher.Constraint("Symmetric", 7, 3, 51, 3, -1, 1))
sketch4.addConstraint(Sketcher.Constraint("Symmetric", 6, 3, 52, 3, -1, 1))
sketch4.addConstraint(Sketcher.Constraint("Symmetric", 5, 3, 53, 3, -1, 1))
sketch4.addConstraint(Sketcher.Constraint("Symmetric", 4, 3, 54, 3, -1, 1))
sketch4.addConstraint(Sketcher.Constraint("Symmetric", 3, 3, 55, 3, -1, 1))
sketch4.addConstraint(Sketcher.Constraint("Symmetric", 2, 3, 56, 3, -1, 1))
sketch4.addConstraint(Sketcher.Constraint("Symmetric", 0, 3, 57, 3, -1, 1))
sketch4.addConstraint(Sketcher.Constraint("Symmetric", 1, 3, 58, 3, -1, 1))
sketch4.addConstraint(Sketcher.Constraint("PointOnObject", 0, 3, -2))
sketch4.addConstraint(Sketcher.Constraint("PointOnObject", 1, 3, -2))
sketch4.addConstraint(Sketcher.Constraint("PointOnObject", 2, 3, -2))
sketch4.addConstraint(Sketcher.Constraint("PointOnObject", 3, 3, -2))
sketch4.addConstraint(Sketcher.Constraint("PointOnObject", 4, 3, -2))
sketch4.addConstraint(Sketcher.Constraint("PointOnObject", 5, 3, -2))
sketch4.addConstraint(Sketcher.Constraint("PointOnObject", 6, 3, -2))
sketch4.addConstraint(Sketcher.Constraint("PointOnObject", 7, 3, -2))
sketch4.addConstraint(Sketcher.Constraint("PointOnObject", 8, 3, -2))
sketch4.addConstraint(Sketcher.Constraint("PointOnObject", 9, 3, -2))
sketch4.addConstraint(Sketcher.Constraint("PointOnObject", 10, 3, -2))
sketch4.addConstraint(Sketcher.Constraint("PointOnObject", 11, 3, -2))
sketch4.addConstraint(Sketcher.Constraint("PointOnObject", 12, 3, -2))
sketch4.addConstraint(Sketcher.Constraint("PointOnObject", 13, 3, -2))
sketch4.addConstraint(Sketcher.Constraint("PointOnObject", 14, 3, -2))
sketch4.addConstraint(Sketcher.Constraint("PointOnObject", 15, 3, -2))
sketch4.addConstraint(Sketcher.Constraint("PointOnObject", 16, 3, -2))
sketch4.addConstraint(Sketcher.Constraint("PointOnObject", 17, 3, -2))
sketch4.addConstraint(Sketcher.Constraint("PointOnObject", 18, 3, -2))
sketch4.addConstraint(Sketcher.Constraint("PointOnObject", 19, 3, -2))
sketch4.addConstraint(Sketcher.Constraint("PointOnObject", 20, 3, -2))
sketch4.addConstraint(Sketcher.Constraint("PointOnObject", 21, 3, -2))
sketch4.addConstraint(Sketcher.Constraint("PointOnObject", 22, 3, -2))
sketch4.addConstraint(Sketcher.Constraint("PointOnObject", 23, 3, -2))
sketch4.addConstraint(Sketcher.Constraint("PointOnObject", 24, 3, -2))
sketch4.addConstraint(Sketcher.Constraint("PointOnObject", 25, 3, -2))
sketch4.addConstraint(Sketcher.Constraint("PointOnObject", 26, 3, -2))
sketch4.addConstraint(Sketcher.Constraint("PointOnObject", 27, 3, -2))
sketch4.addConstraint(Sketcher.Constraint("PointOnObject", 28, 3, -2))
sketch4.addConstraint(Sketcher.Constraint("Diameter", 0, Q("0.163 in")))
sketch4.addConstraint(Sketcher.Constraint("DistanceY", 0, 3, -1, 1, Q("28 in")))
sketch4.addConstraint(Sketcher.Constraint("DistanceY", 1, 3, -1, 1, Q("29 in")))
sketch4.addConstraint(Sketcher.Constraint("DistanceY", 2, 3, -1, 1, Q("27 in")))
sketch4.addConstraint(Sketcher.Constraint("DistanceY", 3, 3, -1, 1, Q("26 in")))
sketch4.addConstraint(Sketcher.Constraint("DistanceY", 4, 3, -1, 1, Q("25 in")))
sketch4.addConstraint(Sketcher.Constraint("DistanceY", 5, 3, -1, 1, Q("24 in")))
sketch4.addConstraint(Sketcher.Constraint("DistanceY", 6, 3, -1, 1, Q("23 in")))
sketch4.addConstraint(Sketcher.Constraint("DistanceY", 7, 3, -1, 1, Q("22 in")))
sketch4.addConstraint(Sketcher.Constraint("DistanceY", 8, 3, -1, 1, Q("21 in")))
sketch4.addConstraint(Sketcher.Constraint("DistanceY", 9, 3, -1, 1, Q("20 in")))
sketch4.addConstraint(Sketcher.Constraint("DistanceY", 10, 3, -1, 1, Q("19 in")))
sketch4.addConstraint(Sketcher.Constraint("DistanceY", 11, 3, -1, 1, Q("18 in")))
sketch4.addConstraint(Sketcher.Constraint("DistanceY", 12, 3, -1, 1, Q("17 in")))
sketch4.addConstraint(Sketcher.Constraint("DistanceY", 13, 3, -1, 1, Q("16 in")))
sketch4.addConstraint(Sketcher.Constraint("DistanceY", 14, 3, -1, 1, Q("15 in")))
sketch4.addConstraint(Sketcher.Constraint("DistanceY", 15, 3, -1, 1, Q("14 in")))
sketch4.addConstraint(Sketcher.Constraint("DistanceY", 16, 3, -1, 1, Q("13 in")))
sketch4.addConstraint(Sketcher.Constraint("DistanceY", 17, 3, -1, 1, Q("12 in")))
sketch4.addConstraint(Sketcher.Constraint("DistanceY", 18, 3, -1, 1, Q("11 in")))
sketch4.addConstraint(Sketcher.Constraint("DistanceY", 19, 3, -1, 1, Q("10 in")))
sketch4.addConstraint(Sketcher.Constraint("DistanceY", 20, 3, -1, 1, Q("9 in")))
sketch4.addConstraint(Sketcher.Constraint("DistanceY", 21, 3, -1, 1, Q("8 in")))
sketch4.addConstraint(Sketcher.Constraint("DistanceY", 22, 3, -1, 1, Q("7 in")))
sketch4.addConstraint(Sketcher.Constraint("DistanceY", 23, 3, -1, 1, Q("6 in")))
sketch4.addConstraint(Sketcher.Constraint("DistanceY", 24, 3, -1, 1, Q("5 in")))
sketch4.addConstraint(Sketcher.Constraint("DistanceY", 25, 3, -1, 1, Q("4 in")))
sketch4.addConstraint(Sketcher.Constraint("DistanceY", 26, 3, -1, 1, Q("3 in")))
sketch4.addConstraint(Sketcher.Constraint("DistanceY", 27, 3, -1, 1, Q("2 in")))
sketch4.addConstraint(Sketcher.Constraint("DistanceY", 28, 3, -1, 1, Q("1 in")))
doc.recompute()
hole2 = body.newObject("PartDesign::Hole", "Hole001")
hole2.Profile = sketch4
hole2.ThreadType = "None"
hole2.Diameter = Q("0.163 in")
hole2.DepthType = "Dimension"
hole2.Depth = Q("2 in")
hole2.DrillPoint = "Flat"
hole2.Reversed = True
doc.recompute()

fillet = body.newObject("PartDesign::Fillet", "Fillet")
fillet.Base = (hole2, edges_at(hole2, [
    (-10.16, -22.86, 0),
    (10.16, -22.86, 0),
    (10.16, 22.86, 0),
    (-10.16, 22.86, 0),
]))
fillet.Radius = 0.5
doc.recompute()

fillet2 = body.newObject("PartDesign::Fillet", "Fillet001")
fillet2.Base = (fillet, edges_at(fillet, [
    (-12.7, 25.4, 0),
    (-12.7, -25.4, 0),
    (12.7, 25.4, 0),
    (12.7, -25.4, 0),
]))
fillet2.Radius = Q("0.1 in")

doc.recompute()
